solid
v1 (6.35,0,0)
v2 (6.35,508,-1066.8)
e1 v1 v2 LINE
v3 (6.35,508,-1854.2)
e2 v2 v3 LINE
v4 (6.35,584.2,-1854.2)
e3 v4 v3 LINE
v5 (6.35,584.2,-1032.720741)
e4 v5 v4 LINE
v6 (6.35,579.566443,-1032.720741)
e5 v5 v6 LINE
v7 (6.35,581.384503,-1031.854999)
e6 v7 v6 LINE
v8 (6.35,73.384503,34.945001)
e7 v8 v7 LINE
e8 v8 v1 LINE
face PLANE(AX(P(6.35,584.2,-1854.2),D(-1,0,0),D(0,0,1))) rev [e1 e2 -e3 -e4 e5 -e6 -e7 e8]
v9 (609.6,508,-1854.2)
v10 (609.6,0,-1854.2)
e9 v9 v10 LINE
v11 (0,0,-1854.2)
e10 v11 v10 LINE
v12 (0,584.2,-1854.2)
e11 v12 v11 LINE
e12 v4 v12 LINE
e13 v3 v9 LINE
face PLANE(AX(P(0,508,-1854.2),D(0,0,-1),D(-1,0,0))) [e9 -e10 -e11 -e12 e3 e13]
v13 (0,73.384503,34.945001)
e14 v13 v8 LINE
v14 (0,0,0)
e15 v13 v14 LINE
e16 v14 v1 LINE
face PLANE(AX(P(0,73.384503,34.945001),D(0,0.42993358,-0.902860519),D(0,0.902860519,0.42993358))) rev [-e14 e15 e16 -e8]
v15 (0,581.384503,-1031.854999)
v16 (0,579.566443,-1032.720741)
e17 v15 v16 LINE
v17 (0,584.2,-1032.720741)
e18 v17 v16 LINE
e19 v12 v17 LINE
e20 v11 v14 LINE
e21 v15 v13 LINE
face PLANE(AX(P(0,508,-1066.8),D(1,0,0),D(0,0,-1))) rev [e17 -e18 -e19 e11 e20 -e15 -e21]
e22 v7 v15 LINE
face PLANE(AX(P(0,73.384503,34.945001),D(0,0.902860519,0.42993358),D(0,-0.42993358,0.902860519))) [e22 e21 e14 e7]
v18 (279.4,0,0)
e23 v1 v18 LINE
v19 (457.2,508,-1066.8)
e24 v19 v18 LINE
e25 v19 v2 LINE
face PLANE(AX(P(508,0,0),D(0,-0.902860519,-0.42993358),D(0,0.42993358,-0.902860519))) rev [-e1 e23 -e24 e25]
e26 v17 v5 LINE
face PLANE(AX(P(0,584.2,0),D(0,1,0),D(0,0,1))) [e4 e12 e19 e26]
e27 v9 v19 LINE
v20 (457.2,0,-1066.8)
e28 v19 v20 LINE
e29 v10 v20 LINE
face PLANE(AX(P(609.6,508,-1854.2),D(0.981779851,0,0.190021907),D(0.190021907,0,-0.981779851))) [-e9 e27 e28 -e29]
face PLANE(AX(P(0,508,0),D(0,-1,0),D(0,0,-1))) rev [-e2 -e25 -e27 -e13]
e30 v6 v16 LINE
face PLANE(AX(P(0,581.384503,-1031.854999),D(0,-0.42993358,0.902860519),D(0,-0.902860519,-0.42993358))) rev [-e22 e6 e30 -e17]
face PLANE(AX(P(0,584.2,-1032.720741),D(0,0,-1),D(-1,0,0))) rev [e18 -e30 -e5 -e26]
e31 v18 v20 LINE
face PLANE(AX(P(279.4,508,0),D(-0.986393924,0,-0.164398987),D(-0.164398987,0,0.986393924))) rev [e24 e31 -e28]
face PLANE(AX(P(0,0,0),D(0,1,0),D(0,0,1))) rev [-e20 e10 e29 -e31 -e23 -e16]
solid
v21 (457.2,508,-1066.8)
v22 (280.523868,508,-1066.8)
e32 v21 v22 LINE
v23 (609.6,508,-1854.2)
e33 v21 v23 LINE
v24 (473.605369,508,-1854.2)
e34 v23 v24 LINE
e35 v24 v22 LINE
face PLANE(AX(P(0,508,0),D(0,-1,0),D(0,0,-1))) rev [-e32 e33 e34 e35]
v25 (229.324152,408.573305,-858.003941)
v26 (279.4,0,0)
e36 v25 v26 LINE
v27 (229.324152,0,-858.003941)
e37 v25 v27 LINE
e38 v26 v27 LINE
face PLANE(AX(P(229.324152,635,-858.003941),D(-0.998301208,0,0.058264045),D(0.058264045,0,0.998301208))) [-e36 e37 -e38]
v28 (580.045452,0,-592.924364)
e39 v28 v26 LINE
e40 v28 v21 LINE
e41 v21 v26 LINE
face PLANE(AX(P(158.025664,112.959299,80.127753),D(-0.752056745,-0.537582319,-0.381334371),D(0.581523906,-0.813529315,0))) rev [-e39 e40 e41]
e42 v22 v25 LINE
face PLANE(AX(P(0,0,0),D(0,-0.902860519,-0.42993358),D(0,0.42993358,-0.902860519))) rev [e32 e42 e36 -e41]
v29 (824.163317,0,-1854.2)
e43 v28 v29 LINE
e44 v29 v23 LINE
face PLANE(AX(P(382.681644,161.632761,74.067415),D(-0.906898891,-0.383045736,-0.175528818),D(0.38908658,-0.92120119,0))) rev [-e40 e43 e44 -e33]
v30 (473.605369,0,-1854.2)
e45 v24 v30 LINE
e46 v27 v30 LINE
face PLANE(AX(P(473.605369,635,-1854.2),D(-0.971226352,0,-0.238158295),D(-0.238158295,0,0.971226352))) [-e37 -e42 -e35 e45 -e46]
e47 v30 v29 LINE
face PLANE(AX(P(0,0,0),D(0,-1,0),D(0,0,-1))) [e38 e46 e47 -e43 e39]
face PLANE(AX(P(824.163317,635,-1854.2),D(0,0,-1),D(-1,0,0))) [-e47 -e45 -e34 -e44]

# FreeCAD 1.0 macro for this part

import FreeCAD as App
import Part
import Sketcher
from FreeCAD import Vector
Q = App.Units.Quantity


def add_polygon(sketch, points):
    """Adds a closed chain of lines whose ends are joined by coincident constraints."""
    first, n = sketch.GeometryCount, len(points)
    for a, b in zip(points, points[1:] + points[:1]):
        sketch.addGeometry(Part.LineSegment(App.Vector(*a, 0), App.Vector(*b, 0)), False)
    for i in range(n):
        sketch.addConstraint(Sketcher.Constraint("Coincident", first + i, 2, first + (i + 1) % n, 1))

doc = App.newDocument("Part")
body = doc.addObject("PartDesign::Body", "Body")

sketch1 = body.newObject("Sketcher::SketchObject", "Sketch")
sketch1.AttachmentSupport = (doc.getObject("XZ_Plane"), [""])
sketch1.MapMode = "FlatFace"
add_polygon(sketch1, [(0, -1067), (0, 0), (279, 0), (457, -1067)])
sketch1.addConstraint([
    Sketcher.Constraint("Vertical", 0),
    Sketcher.Constraint("Horizontal", 1),
    Sketcher.Constraint("Horizontal", 3),
    Sketcher.Constraint("Coincident", 0, 2, -1, 1),
    Sketcher.Constraint("DistanceX", 1, 1, 1, 2, Q("11 in")),
    Sketcher.Constraint("DistanceX", 3, 2, 3, 1, Q("18 in")),
    Sketcher.Constraint("DistanceY", 0, 1, 0, 2, Q("42 in")),
])
pad1 = body.newObject("PartDesign::Pad", "Pad")
pad1.Profile = sketch1
pad1.Length = Q("20 in")
pad1.Reversed = True

sketch2 = body.newObject("Sketcher::SketchObject", "Sketch001")
sketch2.AttachmentSupport = (doc.getObject("YZ_Plane"), [""])
sketch2.MapMode = "FlatFace"
add_polygon(sketch2, [(508, -1067), (0, 0), (733, 0), (733, -1067)])
sketch2.addConstraint([
    Sketcher.Constraint("Horizontal", 1),
    Sketcher.Constraint("Vertical", 2),
    Sketcher.Constraint("Horizontal", 3),
    Sketcher.Constraint("Coincident", 0, 2, -1, 1),
    Sketcher.Constraint("DistanceY", 2, 2, 2, 1, Q("42 in")),
    Sketcher.Constraint("DistanceX", -1, 1, 3, 2, Q("20 in")),
    Sketcher.Constraint("DistanceX", 1, 1, 1, 2, 732.672418),
])
pocket1 = body.newObject("PartDesign::Pocket", "Pocket")
pocket1.Profile = sketch2
pocket1.Length = Q("20 in")
pocket1.Reversed = True

sketch3 = body.newObject("Sketcher::SketchObject", "Sketch002")
sketch3.AttachmentSupport = (doc.getObject("XZ_Plane"), [""])
sketch3.MapMode = "FlatFace"
add_polygon(sketch3, [(0, -1067), (0, -1854), (610, -1854), (457, -1067)])
sketch3.addConstraint([
    Sketcher.Constraint("Vertical", 0),
    Sketcher.Constraint("Horizontal", 1),
    Sketcher.Constraint("Horizontal", 3),
    Sketcher.Constraint("PointOnObject", 0, 2, -2),
    Sketcher.Constraint("DistanceX", 1, 1, 1, 2, Q("24 in")),
    Sketcher.Constraint("DistanceX", 3, 2, 3, 1, Q("18 in")),
    Sketcher.Constraint("DistanceY", 0, 2, 0, 1, Q("31 in")),
    Sketcher.Constraint("DistanceY", 0, 2, -1, 1, Q("73 in")),
])
pad2 = body.newObject("PartDesign::Pad", "Pad001")
pad2.Profile = sketch3
pad2.Length = Q("20 in")
pad2.Reversed = True

sketch4 = body.newObject("Sketcher::SketchObject", "Sketch003")
sketch4.AttachmentSupport = (doc.getObject("XZ_Plane"), [""])
sketch4.MapMode = "FlatFace"
sketch4.AttachmentOffset = App.Placement(Vector(0, 0, -20 * 25.4), App.Rotation())
add_polygon(sketch4, [(0, -1854), (0, -1033), (6, -1033), (6, -1854)])
sketch4.addConstraint([
    Sketcher.Constraint("Vertical", 0),
    Sketcher.Constraint("Horizontal", 1),
    Sketcher.Constraint("Vertical", 2),
    Sketcher.Constraint("Horizontal", 3),
    Sketcher.Constraint("PointOnObject", 0, 2, -2),
    Sketcher.Constraint("DistanceY", 2, 2, -1, 1, Q("73 in")),
    Sketcher.Constraint("DistanceX", 1, 1, 1, 2, Q("0.25 in")),
    Sketcher.Constraint("DistanceY", 0, 1, 0, 2, 821.479259),
])
pad3 = body.newObject("PartDesign::Pad", "Pad002")
pad3.Profile = sketch4
pad3.Length = Q("3 in")
pad3.Reversed = True

sketch5 = body.newObject("Sketcher::SketchObject", "Sketch004")
sketch5.Placement = App.Placement(Vector(0, 0, 0), App.Rotation(Vector(1, 0, 0), Vector(0, 0.42993358, -0.902860519), Vector(0, 0.902860519, 0.42993358), "ZXY"))
add_polygon(sketch5, [(0, 1182), (0, 0), (6, 0), (6, 1182)])
sketch5.addConstraint([
    Sketcher.Constraint("Vertical", 0),
    Sketcher.Constraint("Horizontal", 1),
    Sketcher.Constraint("Vertical", 2),
    Sketcher.Constraint("Horizontal", 3),
    Sketcher.Constraint("Coincident", 0, 2, -1, 1),
    Sketcher.Constraint("DistanceX", 1, 1, 1, 2, Q("0.25 in")),
    Sketcher.Constraint("DistanceY", 0, 2, 0, 1, 1181.57786),
])
pad4 = body.newObject("PartDesign::Pad", "Pad003")
pad4.Profile = sketch5
pad4.Length = Q("3.2 in")
body2 = doc.addObject("PartDesign::Body", "Body001")

sketch6 = body2.newObject("Sketcher::SketchObject", "Sketch005")
sketch6.AttachmentSupport = (doc.getObject("XZ_Plane001"), [""])
sketch6.MapMode = "FlatFace"
add_polygon(sketch6, [(758, -944), (279, 0), (229, -858), (474, -1854), (824, -1854)])
sketch6.addConstraint([
    Sketcher.Constraint("Horizontal", 3),
    Sketcher.Constraint("PointOnObject", 0, 2, -1),
    Sketcher.Constraint("DistanceX", -1, 1, 0, 2, Q("11 in")),
    Sketcher.Constraint("DistanceY", 2, 2, -1, 1, Q("73 in")),
    Sketcher.Constraint("DistanceX", 3, 1, 3, 2, 350.557948),
    Sketcher.Constraint("Distance", 1, 859.463992),
    Sketcher.Constraint("DistanceX", -1, 1, 1, 2, 229.324152),
    Sketcher.Constraint("DistanceX", -1, 1, 2, 2, 473.605369),
    Sketcher.Constraint("DistanceX", 1, 2, 4, 2, 528.700451),
    Sketcher.Constraint("Distance", 0, 1058.340633),
])
pad5 = body2.newObject("PartDesign::Pad", "Pad004")
pad5.Profile = sketch6
pad5.Length = Q("25 in")
pad5.Reversed = True

sketch7 = body2.newObject("Sketcher::SketchObject", "Sketch006")
sketch7.Placement = App.Placement(Vector(158.025664, 112.959299, 80.127753), App.Rotation(Vector(-0.31022669, -0.221755053, 0.924437179), Vector(-0.581523906, 0.813529315, 0), Vector(-0.752056745, -0.537582319, -0.381334371), "ZXY"))
add_polygon(sketch7, [(953, -177), (-394, 704), (-2326, 172), (-2275, -628), (-1327, -924)])
sketch7.addConstraint([
    Sketcher.Constraint("DistanceX", 1, 2, 0, 2, 1931.863701),
    Sketcher.Constraint("DistanceX", 0, 2, -1, 1, 393.664649),
    Sketcher.Constraint("DistanceY", -1, 1, 0, 2, 703.625609),
    Sketcher.Constraint("DistanceY", -1, 1, 1, 2, 172.375822),
    Sketcher.Constraint("DistanceX", 2, 2, -1, 1, 2274.788321),
    Sketcher.Constraint("DistanceX", 3, 2, -1, 1, 1326.842791),
    Sketcher.Constraint("DistanceY", 2, 2, 0, 2, 1331.952341),
    Sketcher.Constraint("DistanceY", 4, 2, 1, 2, 349.304629),
    Sketcher.Constraint("Distance", 0, 1609.202697),
    Sketcher.Constraint("Distance", 3, 992.855108),
])
pocket2 = body2.newObject("PartDesign::Pocket", "Pocket001")
pocket2.Profile = sketch7
pocket2.Length = Q("40 in")

sketch8 = body2.newObject("Sketcher::SketchObject", "Sketch007")
sketch8.Placement = App.Placement(Vector(397.940074, 254.27896, 77.020659), App.Rotation(Vector(0.135641307, 0.086673177, -0.986959572), Vector(-0.538448627, 0.84265834, 0), Vector(0.831669714, 0.531427026, 0.160968332), "ZXY"))
add_polygon(sketch8, [(2539, 768), (1083, 1262), (307, -1024), (2438, -1113)])
sketch8.addConstraint([
    Sketcher.Constraint("Perpendicular", 0, 1),
    Sketcher.Constraint("DistanceY", 1, 2, -1, 1, 1023.580098),
    Sketcher.Constraint("DistanceX", 0, 2, 3, 2, 1456.267499),
    Sketcher.Constraint("Distance", 0, 1537.82806),
    Sketcher.Constraint("Distance", 1, 2413.434091),
    Sketcher.Constraint("DistanceX", -1, 1, 1, 2, 306.999461),
    Sketcher.Constraint("DistanceX", -1, 1, 2, 2, 2437.604132),
    Sketcher.Constraint("DistanceY", 2, 2, -1, 1, 1113.04637),
])
pocket3 = body2.newObject("PartDesign::Pocket", "Pocket002")
pocket3.Profile = sketch8
pocket3.Length = Q("20 in")
pocket3.Reversed = True

sketch9 = body2.newObject("Sketcher::SketchObject", "Sketch008")
sketch9.Placement = App.Placement(Vector(0, 0, 0), App.Rotation(Vector(1, 0, 0), Vector(0, 0.42993358, -0.902860519), Vector(0, 0.902860519, 0.42993358), "ZXY"))
add_polygon(sketch9, [(0, 1182), (0, 0), (1197, 0), (1544, 956), (976, 2301)])
sketch9.addConstraint([
    Sketcher.Constraint("Vertical", 0),
    Sketcher.Constraint("Horizontal", 1),
    Sketcher.Constraint("Coincident", 0, 2, -1, 1),
    Sketcher.Constraint("DistanceY", 0, 2, 0, 1, 1181.57786),
    Sketcher.Constraint("DistanceX", 1, 1, 1, 2, 1197.045935),
    Sketcher.Constraint("DistanceY", -1, 1, 3, 2, 2301.29203),
    Sketcher.Constraint("DistanceX", 1, 2, 2, 2, 346.833528),
    Sketcher.Constraint("DistanceX", 3, 2, 1, 2, 220.693169),
    Sketcher.Constraint("Distance", 2, 1016.902867),
])
pocket4 = body2.newObject("PartDesign::Pocket", "Pocket003")
pocket4.Profile = sketch9
pocket4.Length = Q("40 in")
pocket4.Reversed = True

sketch10 = body2.newObject("Sketcher::SketchObject", "Sketch009")
sketch10.Placement = App.Placement(Vector(382.681644, 161.632761, 74.067415), App.Rotation(Vector(0.161697356, 0.068295907, -0.984474293), Vector(-0.38908658, 0.92120119, 0), Vector(0.906898891, 0.383045736, 0.175528818), "ZXY"))
add_polygon(sketch10, [(2455, 323), (1198, 999), (430, -503), (776, -956), (2411, -956)])
sketch10.addConstraint([
    Sketcher.Constraint("Horizontal", 3),
    Sketcher.Constraint("DistanceY", 1, 2, -1, 1, 503.275201),
    Sketcher.Constraint("DistanceX", 2, 2, 0, 2, 421.268201),
    Sketcher.Constraint("Distance", 0, 1427.727438),
    Sketcher.Constraint("Distance", 4, 1280.317462),
    Sketcher.Constraint("DistanceX", 3, 1, 3, 2, 1634.416825),
    Sketcher.Constraint("DistanceX", -1, 1, 1, 2, 430.351182),
    Sketcher.Constraint("DistanceX", -1, 1, 3, 2, 2410.705422),
    Sketcher.Constraint("DistanceY", -1, 1, 4, 2, 323.497658),
    Sketcher.Constraint("DistanceX", 0, 2, 4, 2, 1257.739169),
])
pocket5 = body2.newObject("PartDesign::Pocket", "Pocket004")
pocket5.Profile = sketch10
pocket5.Length = Q("40 in")
pocket5.Reversed = True

sketch11 = body2.newObject("Sketcher::SketchObject", "Sketch010")
sketch11.AttachmentSupport = (doc.getObject("XZ_Plane001"), [""])
sketch11.MapMode = "FlatFace"
sketch11.AttachmentOffset = App.Placement(Vector(0, 0, -20 * 25.4), App.Rotation())
add_polygon(sketch11, [(1863, -1800), (352, -2301), (-444, -1364), (-287, -375), (1314, -629)])
sketch11.addConstraint([
    Sketcher.Constraint("Perpendicular", 2, 3),
    Sketcher.Constraint("DistanceY", 4, 2, 2, 2, 1425.083699),
    Sketcher.Constraint("Distance", 3, 1620.935479),
    Sketcher.Constraint("DistanceX", 2, 2, -1, 1, 286.938271),
    Sketcher.Constraint("DistanceX", -1, 1, 4, 2, 1863.401979),
    Sketcher.Constraint("DistanceX", 1, 2, 0, 2, 795.526681),
    Sketcher.Constraint("DistanceY", 1, 2, 2, 2, 989.240219),
    Sketcher.Constraint("DistanceX", 1, 2, 3, 2, 1757.94854),
    Sketcher.Constraint("DistanceY", 0, 2, 3, 2, 1672.03127),
    Sketcher.Constraint("DistanceY", 0, 2, -1, 1, 2301.225933),
])
pocket6 = body2.newObject("PartDesign::Pocket", "Pocket005")
pocket6.Profile = sketch11
pocket6.Length = Q("40 in")

doc.recompute()
